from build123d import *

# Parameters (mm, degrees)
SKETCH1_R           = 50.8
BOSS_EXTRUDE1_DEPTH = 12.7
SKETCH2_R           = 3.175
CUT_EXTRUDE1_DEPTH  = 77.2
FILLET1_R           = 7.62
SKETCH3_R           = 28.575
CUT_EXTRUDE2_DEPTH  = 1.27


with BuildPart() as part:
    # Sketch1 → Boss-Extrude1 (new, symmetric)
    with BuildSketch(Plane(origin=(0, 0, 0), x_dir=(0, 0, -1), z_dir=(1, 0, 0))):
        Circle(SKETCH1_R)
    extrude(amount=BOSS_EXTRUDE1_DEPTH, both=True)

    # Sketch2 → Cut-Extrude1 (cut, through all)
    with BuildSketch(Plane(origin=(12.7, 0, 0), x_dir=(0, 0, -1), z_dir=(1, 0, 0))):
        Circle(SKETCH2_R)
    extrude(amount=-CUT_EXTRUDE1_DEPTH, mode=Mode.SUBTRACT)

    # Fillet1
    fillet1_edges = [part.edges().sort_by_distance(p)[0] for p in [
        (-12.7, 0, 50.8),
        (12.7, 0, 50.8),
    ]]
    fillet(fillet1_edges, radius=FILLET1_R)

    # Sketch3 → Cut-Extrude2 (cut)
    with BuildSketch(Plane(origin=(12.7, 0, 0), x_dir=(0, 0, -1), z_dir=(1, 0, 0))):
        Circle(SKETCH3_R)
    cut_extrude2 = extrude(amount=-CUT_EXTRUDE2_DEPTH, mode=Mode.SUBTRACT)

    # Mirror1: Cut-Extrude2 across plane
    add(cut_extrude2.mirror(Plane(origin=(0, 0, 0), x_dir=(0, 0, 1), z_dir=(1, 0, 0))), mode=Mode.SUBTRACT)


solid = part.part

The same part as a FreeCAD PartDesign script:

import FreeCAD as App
import Part
import Sketcher
Q = App.Units.Quantity


def edges_at(feature, points):
    """Names of the edges that pass closest to the given points."""
    edges = feature.Shape.Edges
    near = lambda p: min(range(len(edges)), key=lambda i: edges[i].distToShape(Part.Vertex(*p))[0])
    return sorted({f"Edge{near(p) + 1}" for p in points})

doc = App.newDocument("Part")
body = doc.addObject("PartDesign::Body", "Body")

sketch1 = body.newObject("Sketcher::SketchObject", "Sketch")
sketch1.AttachmentSupport = (doc.getObject("YZ_Plane"), [""])
sketch1.MapMode = "FlatFace"
sketch1.addGeometry(Part.Circle(App.Vector(0, 0, 0), App.Vector(0, 0, 1), 51), False)
sketch1.addConstraint([
    Sketcher.Constraint("Coincident", 0, 3, -1, 1),
    Sketcher.Constraint("Diameter", 0, Q("4 in")),
])
pad1 = body.newObject("PartDesign::Pad", "Pad")
pad1.Profile = sketch1
pad1.Length = Q("1 in")
pad1.Midplane = True

sketch2 = body.newObject("Sketcher::SketchObject", "Sketch001")
sketch2.AttachmentSupport = (doc.getObject("YZ_Plane"), [""])
sketch2.MapMode = "FlatFace"
sketch2.AttachmentOffset = App.Placement(App.Vector(0, 0, 0.5 * 25.4), App.Rotation())
sketch2.addGeometry(Part.Circle(App.Vector(0, 0, 0), App.Vector(0, 0, 1), 3.2), False)
sketch2.addConstraint([
    Sketcher.Constraint("Coincident", 0, 3, -1, 1),
    Sketcher.Constraint("Diameter", 0, Q("0.25 in")),
])
pocket1 = body.newObject("PartDesign::Pocket", "Pocket")
pocket1.Profile = sketch2
pocket1.Type = "ThroughAll"
doc.recompute()

fillet = body.newObject("PartDesign::Fillet", "Fillet")
fillet.Base = (pocket1, edges_at(pocket1, [(-12.7, 0, 50.8), (12.7, 0, 50.8)]))
fillet.Radius = Q("0.3 in")

sketch3 = body.newObject("Sketcher::SketchObject", "Sketch002")
sketch3.AttachmentSupport = (doc.getObject("YZ_Plane"), [""])
sketch3.MapMode = "FlatFace"
sketch3.AttachmentOffset = App.Placement(App.Vector(0, 0, 0.5 * 25.4), App.Rotation())
sketch3.addGeometry(Part.Circle(App.Vector(0, 0, 0), App.Vector(0, 0, 1), 29), False)
sketch3.addConstraint([
    Sketcher.Constraint("Coincident", 0, 3, -1, 1),
    Sketcher.Constraint("Diameter", 0, Q("2.25 in")),
])
pocket2 = body.newObject("PartDesign::Pocket", "Pocket001")
pocket2.Profile = sketch3
pocket2.Length = Q("0.05 in")
doc.recompute()

mirrored = body.newObject("PartDesign::Mirrored", "Mirrored")
mirrored.Originals = [pocket2]
mirrored.MirrorPlane = (doc.getObject("YZ_Plane"), [""])
body.Tip = mirrored

doc.recompute()
